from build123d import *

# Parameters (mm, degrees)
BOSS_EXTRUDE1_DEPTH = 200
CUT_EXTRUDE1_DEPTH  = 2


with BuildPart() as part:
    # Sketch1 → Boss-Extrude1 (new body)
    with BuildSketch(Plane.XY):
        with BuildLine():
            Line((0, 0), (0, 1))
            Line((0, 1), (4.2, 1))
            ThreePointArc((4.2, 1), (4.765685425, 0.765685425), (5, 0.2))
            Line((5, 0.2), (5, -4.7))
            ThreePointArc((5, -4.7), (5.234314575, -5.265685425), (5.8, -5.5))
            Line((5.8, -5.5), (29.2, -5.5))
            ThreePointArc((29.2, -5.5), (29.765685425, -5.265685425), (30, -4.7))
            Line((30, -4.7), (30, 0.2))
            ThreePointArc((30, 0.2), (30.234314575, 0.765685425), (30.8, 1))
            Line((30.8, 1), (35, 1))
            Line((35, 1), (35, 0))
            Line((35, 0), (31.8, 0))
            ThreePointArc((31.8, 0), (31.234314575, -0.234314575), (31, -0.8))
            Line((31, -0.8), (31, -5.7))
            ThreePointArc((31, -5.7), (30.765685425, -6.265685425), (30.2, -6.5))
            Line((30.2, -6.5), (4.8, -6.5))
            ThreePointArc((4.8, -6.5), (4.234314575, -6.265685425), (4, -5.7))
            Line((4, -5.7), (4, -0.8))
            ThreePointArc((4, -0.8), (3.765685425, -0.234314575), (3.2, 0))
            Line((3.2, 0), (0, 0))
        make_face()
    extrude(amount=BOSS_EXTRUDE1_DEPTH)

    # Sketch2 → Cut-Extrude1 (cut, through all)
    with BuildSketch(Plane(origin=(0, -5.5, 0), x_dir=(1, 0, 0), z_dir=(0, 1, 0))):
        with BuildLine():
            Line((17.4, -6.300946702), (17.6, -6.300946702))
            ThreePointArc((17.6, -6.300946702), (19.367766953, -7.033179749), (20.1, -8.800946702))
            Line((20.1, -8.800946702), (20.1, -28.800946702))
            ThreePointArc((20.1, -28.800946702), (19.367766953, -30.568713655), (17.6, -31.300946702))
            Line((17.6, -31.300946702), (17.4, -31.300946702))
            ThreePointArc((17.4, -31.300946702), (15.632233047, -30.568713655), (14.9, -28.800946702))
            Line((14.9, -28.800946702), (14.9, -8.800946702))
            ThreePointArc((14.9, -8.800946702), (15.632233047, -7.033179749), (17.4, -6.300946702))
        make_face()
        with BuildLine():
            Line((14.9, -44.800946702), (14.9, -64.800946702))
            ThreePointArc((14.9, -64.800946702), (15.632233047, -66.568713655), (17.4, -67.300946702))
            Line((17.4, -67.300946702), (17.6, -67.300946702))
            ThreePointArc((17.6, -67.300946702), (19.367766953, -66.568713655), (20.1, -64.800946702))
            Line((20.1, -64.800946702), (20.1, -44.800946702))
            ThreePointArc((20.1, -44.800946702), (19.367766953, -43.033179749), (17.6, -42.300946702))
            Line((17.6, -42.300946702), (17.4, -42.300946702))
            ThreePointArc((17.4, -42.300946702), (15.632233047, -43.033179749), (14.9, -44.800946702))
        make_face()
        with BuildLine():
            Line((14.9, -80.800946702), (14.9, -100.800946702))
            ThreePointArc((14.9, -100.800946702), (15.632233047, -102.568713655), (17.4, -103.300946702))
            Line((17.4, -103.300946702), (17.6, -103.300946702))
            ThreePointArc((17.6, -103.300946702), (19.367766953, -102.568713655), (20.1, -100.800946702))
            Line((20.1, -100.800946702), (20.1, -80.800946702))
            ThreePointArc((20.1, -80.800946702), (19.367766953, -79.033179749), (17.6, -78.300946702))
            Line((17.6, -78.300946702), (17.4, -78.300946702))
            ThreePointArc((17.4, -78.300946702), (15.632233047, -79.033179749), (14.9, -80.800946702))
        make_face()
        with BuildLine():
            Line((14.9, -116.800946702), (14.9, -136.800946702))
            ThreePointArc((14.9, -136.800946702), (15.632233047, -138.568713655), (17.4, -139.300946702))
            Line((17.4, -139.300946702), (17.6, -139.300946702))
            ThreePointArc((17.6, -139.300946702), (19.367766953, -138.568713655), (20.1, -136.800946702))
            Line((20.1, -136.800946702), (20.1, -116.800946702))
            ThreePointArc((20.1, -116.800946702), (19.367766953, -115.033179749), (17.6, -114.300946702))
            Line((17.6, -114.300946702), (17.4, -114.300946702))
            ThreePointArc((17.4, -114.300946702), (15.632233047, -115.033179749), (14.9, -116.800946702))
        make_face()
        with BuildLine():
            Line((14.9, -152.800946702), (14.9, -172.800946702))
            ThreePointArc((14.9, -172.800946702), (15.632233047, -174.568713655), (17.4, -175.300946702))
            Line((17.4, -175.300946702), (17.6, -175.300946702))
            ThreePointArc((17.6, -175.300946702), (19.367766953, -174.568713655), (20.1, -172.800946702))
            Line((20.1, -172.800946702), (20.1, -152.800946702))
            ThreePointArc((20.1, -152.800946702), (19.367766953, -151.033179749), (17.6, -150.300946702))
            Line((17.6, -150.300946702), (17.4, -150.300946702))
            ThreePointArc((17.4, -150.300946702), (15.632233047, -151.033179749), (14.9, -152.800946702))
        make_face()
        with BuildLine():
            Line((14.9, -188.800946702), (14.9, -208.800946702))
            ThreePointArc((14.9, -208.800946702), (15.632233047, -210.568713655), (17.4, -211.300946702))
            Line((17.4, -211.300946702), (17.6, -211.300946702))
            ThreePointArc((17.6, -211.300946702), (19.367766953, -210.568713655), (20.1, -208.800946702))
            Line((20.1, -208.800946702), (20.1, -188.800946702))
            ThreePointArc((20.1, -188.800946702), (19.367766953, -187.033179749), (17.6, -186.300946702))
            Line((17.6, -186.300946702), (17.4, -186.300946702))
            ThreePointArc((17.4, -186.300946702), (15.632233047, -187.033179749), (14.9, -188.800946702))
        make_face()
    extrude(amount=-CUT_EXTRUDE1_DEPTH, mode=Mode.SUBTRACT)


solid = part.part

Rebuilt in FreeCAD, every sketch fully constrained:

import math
import FreeCAD as App
import Part
import Sketcher

V = App.Vector
Q = App.Units.Quantity

doc = App.newDocument("Part")
body = doc.addObject("PartDesign::Body", "Body")

# Sketch on XY plane
sketch1 = body.newObject("Sketcher::SketchObject", "Sketch")
sketch1.AttachmentSupport = (doc.getObject("XY_Plane"), [""])
sketch1.MapMode = "FlatFace"
sketch1.addGeometry([
    Part.LineSegment(V(0, 1, 0), V(0, 0, 0)),  # 0
    Part.LineSegment(V(0, 0, 0), V(3.2, 0, 0)),  # 1
    Part.ArcOfCircle(Part.Circle(V(3.2, -0.8, 0), V(0, 0, 1), 0.8), math.radians(0), math.radians(90)),  # 2
    Part.LineSegment(V(4, -0.8, 0), V(4, -5.7, 0)),  # 3
    Part.ArcOfCircle(Part.Circle(V(4.8, -5.7, 0), V(0, 0, 1), 0.8), math.radians(180), math.radians(270)),  # 4
    Part.LineSegment(V(4.8, -6.5, 0), V(30.2, -6.5, 0)),  # 5
    Part.ArcOfCircle(Part.Circle(V(30.2, -5.7, 0), V(0, 0, 1), 0.8), math.radians(-90), math.radians(0)),  # 6
    Part.LineSegment(V(31, -5.7, 0), V(31, -0.8, 0)),  # 7
    Part.ArcOfCircle(Part.Circle(V(31.8, -0.8, 0), V(0, 0, 1), 0.8), math.radians(90), math.radians(180)),  # 8
    Part.LineSegment(V(31.8, 0, 0), V(35, 0, 0)),  # 9
    Part.LineSegment(V(35, 0, 0), V(35, 1, 0)),  # 10
    Part.LineSegment(V(35, 1, 0), V(30.8, 1, 0)),  # 11
    Part.ArcOfCircle(Part.Circle(V(30.8, 0.2, 0), V(0, 0, 1), 0.8), math.radians(90), math.radians(180)),  # 12
    Part.LineSegment(V(30, 0.2, 0), V(30, -4.7, 0)),  # 13
    Part.ArcOfCircle(Part.Circle(V(29.2, -4.7, 0), V(0, 0, 1), 0.8), math.radians(-90), math.radians(0)),  # 14
    Part.LineSegment(V(29.2, -5.5, 0), V(5.8, -5.5, 0)),  # 15
    Part.ArcOfCircle(Part.Circle(V(5.8, -4.7, 0), V(0, 0, 1), 0.8), math.radians(180), math.radians(270)),  # 16
    Part.LineSegment(V(5, -4.7, 0), V(5, 0.2, 0)),  # 17
    Part.ArcOfCircle(Part.Circle(V(4.2, 0.2, 0), V(0, 0, 1), 0.8), math.radians(0), math.radians(90)),  # 18
    Part.LineSegment(V(4.2, 1, 0), V(0, 1, 0)),  # 19
], False)
sketch1.addConstraint([
    Sketcher.Constraint("Coincident", 0, 2, 1, 1),
    Sketcher.Constraint("Tangent", 1, 2, 2, 2),
    Sketcher.Constraint("Tangent", 2, 1, 3, 1),
    Sketcher.Constraint("Tangent", 3, 2, 4, 1),
    Sketcher.Constraint("Tangent", 4, 2, 5, 1),
    Sketcher.Constraint("Tangent", 5, 2, 6, 1),
    Sketcher.Constraint("Tangent", 6, 2, 7, 1),
    Sketcher.Constraint("Tangent", 7, 2, 8, 2),
    Sketcher.Constraint("Tangent", 8, 1, 9, 1),
    Sketcher.Constraint("Coincident", 9, 2, 10, 1),
    Sketcher.Constraint("Coincident", 10, 2, 11, 1),
    Sketcher.Constraint("Tangent", 11, 2, 12, 1),
    Sketcher.Constraint("Tangent", 12, 2, 13, 1),
    Sketcher.Constraint("Tangent", 13, 2, 14, 2),
    Sketcher.Constraint("Tangent", 14, 1, 15, 1),
    Sketcher.Constraint("Tangent", 15, 2, 16, 2),
    Sketcher.Constraint("Tangent", 16, 1, 17, 1),
    Sketcher.Constraint("Tangent", 17, 2, 18, 1),
    Sketcher.Constraint("Tangent", 18, 2, 19, 1),
    Sketcher.Constraint("Coincident", 19, 2, 0, 1),
    Sketcher.Constraint("Vertical", 0),
    Sketcher.Constraint("Horizontal", 1),
    Sketcher.Constraint("Vertical", 3),
    Sketcher.Constraint("Horizontal", 5),
    Sketcher.Constraint("Vertical", 7),
    Sketcher.Constraint("Horizontal", 9),
    Sketcher.Constraint("Vertical", 10),
    Sketcher.Constraint("Horizontal", 11),
    Sketcher.Constraint("Vertical", 13),
    Sketcher.Constraint("Horizontal", 15),
    Sketcher.Constraint("Vertical", 17),
    Sketcher.Constraint("Horizontal", 19),
    Sketcher.Constraint("Coincident", 0, 2, -1, 1),
    Sketcher.Constraint("Equal", 2, 4),
    Sketcher.Constraint("Equal", 4, 6),
    Sketcher.Constraint("Equal", 6, 8),
    Sketcher.Constraint("Equal", 8, 12),
    Sketcher.Constraint("Equal", 12, 14),
    Sketcher.Constraint("Equal", 14, 16),
    Sketcher.Constraint("Equal", 16, 18),
    Sketcher.Constraint("PointOnObject", 8, 1, -1),
    Sketcher.Constraint("Horizontal", 12, 3, 18, 3),
    Sketcher.Constraint("Equal", 1, 9),
    Sketcher.Constraint("Equal", 11, 19),
    Sketcher.Constraint("Equal", 7, 13),
    Sketcher.Constraint("Radius", 2, Q("0.8 mm")),
    Sketcher.Constraint("DistanceY", 0, 2, 0, 1, Q("1 mm")),
    Sketcher.Constraint("DistanceX", 1, 1, 1, 2, Q("3.2 mm")),
    Sketcher.Constraint("DistanceX", 5, 1, 5, 2, Q("25.4 mm")),
    Sketcher.Constraint("DistanceX", 11, 2, 11, 1, Q("4.2 mm")),
    Sketcher.Constraint("DistanceY", 3, 2, 3, 1, Q("4.9 mm")),
])
pad1 = body.newObject("PartDesign::Pad", "Pad")
pad1.Profile = sketch1
pad1.Length = 200

# Sketch on XZ plane
sketch2 = body.newObject("Sketcher::SketchObject", "Sketch001")
sketch2.AttachmentSupport = (doc.getObject("XZ_Plane"), [""])
sketch2.MapMode = "FlatFace"
sketch2.AttachmentOffset = App.Placement(V(0, 0, 5.5), App.Rotation())
sketch2.addGeometry([
    Part.LineSegment(V(17.6, 6.3, 0), V(17.4, 6.3, 0)),  # 0
    Part.ArcOfCircle(Part.Circle(V(17.4, 8.8, 0), V(0, 0, 1), 2.5), math.radians(180), math.radians(270)),  # 1
    Part.LineSegment(V(14.9, 8.8, 0), V(14.9, 28.8, 0)),  # 2
    Part.ArcOfCircle(Part.Circle(V(17.4, 28.8, 0), V(0, 0, 1), 2.5), math.radians(90), math.radians(180)),  # 3
    Part.LineSegment(V(17.4, 31.3, 0), V(17.6, 31.3, 0)),  # 4
    Part.ArcOfCircle(Part.Circle(V(17.6, 28.8, 0), V(0, 0, 1), 2.5), math.radians(0), math.radians(90)),  # 5
    Part.LineSegment(V(20.1, 28.8, 0), V(20.1, 8.8, 0)),  # 6
    Part.ArcOfCircle(Part.Circle(V(17.6, 8.8, 0), V(0, 0, 1), 2.5), math.radians(-90), math.radians(0)),  # 7
    Part.LineSegment(V(14.9, 44.8, 0), V(14.9, 64.8, 0)),  # 8
    Part.ArcOfCircle(Part.Circle(V(17.4, 64.8, 0), V(0, 0, 1), 2.5), math.radians(90), math.radians(180)),  # 9
    Part.LineSegment(V(17.4, 67.3, 0), V(17.6, 67.3, 0)),  # 10
    Part.ArcOfCircle(Part.Circle(V(17.6, 64.8, 0), V(0, 0, 1), 2.5), math.radians(0), math.radians(90)),  # 11
    Part.LineSegment(V(20.1, 64.8, 0), V(20.1, 44.8, 0)),  # 12
    Part.ArcOfCircle(Part.Circle(V(17.6, 44.8, 0), V(0, 0, 1), 2.5), math.radians(-90), math.radians(0)),  # 13
    Part.LineSegment(V(17.6, 42.3, 0), V(17.4, 42.3, 0)),  # 14
    Part.ArcOfCircle(Part.Circle(V(17.4, 44.8, 0), V(0, 0, 1), 2.5), math.radians(180), math.radians(270)),  # 15
    Part.LineSegment(V(14.9, 80.8, 0), V(14.9, 100.8, 0)),  # 16
    Part.ArcOfCircle(Part.Circle(V(17.4, 100.8, 0), V(0, 0, 1), 2.5), math.radians(90), math.radians(180)),  # 17
    Part.LineSegment(V(17.4, 103.3, 0), V(17.6, 103.3, 0)),  # 18
    Part.ArcOfCircle(Part.Circle(V(17.6, 100.8, 0), V(0, 0, 1), 2.5), math.radians(0), math.radians(90)),  # 19
    Part.LineSegment(V(20.1, 100.8, 0), V(20.1, 80.8, 0)),  # 20
    Part.ArcOfCircle(Part.Circle(V(17.6, 80.8, 0), V(0, 0, 1), 2.5), math.radians(-90), math.radians(0)),  # 21
    Part.LineSegment(V(17.6, 78.3, 0), V(17.4, 78.3, 0)),  # 22
    Part.ArcOfCircle(Part.Circle(V(17.4, 80.8, 0), V(0, 0, 1), 2.5), math.radians(180), math.radians(270)),  # 23
    Part.LineSegment(V(14.9, 116.8, 0), V(14.9, 136.8, 0)),  # 24
    Part.ArcOfCircle(Part.Circle(V(17.4, 136.8, 0), V(0, 0, 1), 2.5), math.radians(90), math.radians(180)),  # 25
    Part.LineSegment(V(17.4, 139.3, 0), V(17.6, 139.3, 0)),  # 26
    Part.ArcOfCircle(Part.Circle(V(17.6, 136.8, 0), V(0, 0, 1), 2.5), math.radians(0), math.radians(90)),  # 27
    Part.LineSegment(V(20.1, 136.8, 0), V(20.1, 116.8, 0)),  # 28
    Part.ArcOfCircle(Part.Circle(V(17.6, 116.8, 0), V(0, 0, 1), 2.5), math.radians(-90), math.radians(0)),  # 29
    Part.LineSegment(V(17.6, 114.3, 0), V(17.4, 114.3, 0)),  # 30
    Part.ArcOfCircle(Part.Circle(V(17.4, 116.8, 0), V(0, 0, 1), 2.5), math.radians(180), math.radians(270)),  # 31
    Part.LineSegment(V(14.9, 152.8, 0), V(14.9, 172.8, 0)),  # 32
    Part.ArcOfCircle(Part.Circle(V(17.4, 172.8, 0), V(0, 0, 1), 2.5), math.radians(90), math.radians(180)),  # 33
    Part.LineSegment(V(17.4, 175.3, 0), V(17.6, 175.3, 0)),  # 34
    Part.ArcOfCircle(Part.Circle(V(17.6, 172.8, 0), V(0, 0, 1), 2.5), math.radians(0), math.radians(90)),  # 35
    Part.LineSegment(V(20.1, 172.8, 0), V(20.1, 152.8, 0)),  # 36
    Part.ArcOfCircle(Part.Circle(V(17.6, 152.8, 0), V(0, 0, 1), 2.5), math.radians(-90), math.radians(0)),  # 37
    Part.LineSegment(V(17.6, 150.3, 0), V(17.4, 150.3, 0)),  # 38
    Part.ArcOfCircle(Part.Circle(V(17.4, 152.8, 0), V(0, 0, 1), 2.5), math.radians(180), math.radians(270)),  # 39
    Part.LineSegment(V(14.9, 188.8, 0), V(14.9, 208.8, 0)),  # 40
    Part.ArcOfCircle(Part.Circle(V(17.4, 208.8, 0), V(0, 0, 1), 2.5), math.radians(90), math.radians(180)),  # 41
    Part.LineSegment(V(17.4, 211.3, 0), V(17.6, 211.3, 0)),  # 42
    Part.ArcOfCircle(Part.Circle(V(17.6, 208.8, 0), V(0, 0, 1), 2.5), math.radians(0), math.radians(90)),  # 43
    Part.LineSegment(V(20.1, 208.8, 0), V(20.1, 188.8, 0)),  # 44
    Part.ArcOfCircle(Part.Circle(V(17.6, 188.8, 0), V(0, 0, 1), 2.5), math.radians(-90), math.radians(0)),  # 45
    Part.LineSegment(V(17.6, 186.3, 0), V(17.4, 186.3, 0)),  # 46
    Part.ArcOfCircle(Part.Circle(V(17.4, 188.8, 0), V(0, 0, 1), 2.5), math.radians(180), math.radians(270)),  # 47
], False)
sketch2.addConstraint([
    Sketcher.Constraint("Tangent", 0, 2, 1, 2),
    Sketcher.Constraint("Tangent", 1, 1, 2, 1),
    Sketcher.Constraint("Tangent", 2, 2, 3, 2),
    Sketcher.Constraint("Tangent", 3, 1, 4, 1),
    Sketcher.Constraint("Tangent", 4, 2, 5, 2),
    Sketcher.Constraint("Tangent", 5, 1, 6, 1),
    Sketcher.Constraint("Tangent", 6, 2, 7, 2),
    Sketcher.Constraint("Tangent", 7, 1, 0, 1),
    Sketcher.Constraint("Tangent", 8, 2, 9, 2),
    Sketcher.Constraint("Tangent", 9, 1, 10, 1),
    Sketcher.Constraint("Tangent", 10, 2, 11, 2),
    Sketcher.Constraint("Tangent", 11, 1, 12, 1),
    Sketcher.Constraint("Tangent", 12, 2, 13, 2),
    Sketcher.Constraint("Tangent", 13, 1, 14, 1),
    Sketcher.Constraint("Tangent", 14, 2, 15, 2),
    Sketcher.Constraint("Tangent", 15, 1, 8, 1),
    Sketcher.Constraint("Tangent", 16, 2, 17, 2),
    Sketcher.Constraint("Tangent", 17, 1, 18, 1),
    Sketcher.Constraint("Tangent", 18, 2, 19, 2),
    Sketcher.Constraint("Tangent", 19, 1, 20, 1),
    Sketcher.Constraint("Tangent", 20, 2, 21, 2),
    Sketcher.Constraint("Tangent", 21, 1, 22, 1),
    Sketcher.Constraint("Tangent", 22, 2, 23, 2),
    Sketcher.Constraint("Tangent", 23, 1, 16, 1),
    Sketcher.Constraint("Tangent", 24, 2, 25, 2),
    Sketcher.Constraint("Tangent", 25, 1, 26, 1),
    Sketcher.Constraint("Tangent", 26, 2, 27, 2),
    Sketcher.Constraint("Tangent", 27, 1, 28, 1),
    Sketcher.Constraint("Tangent", 28, 2, 29, 2),
    Sketcher.Constraint("Tangent", 29, 1, 30, 1),
    Sketcher.Constraint("Tangent", 30, 2, 31, 2),
    Sketcher.Constraint("Tangent", 31, 1, 24, 1),
    Sketcher.Constraint("Tangent", 32, 2, 33, 2),
    Sketcher.Constraint("Tangent", 33, 1, 34, 1),
    Sketcher.Constraint("Tangent", 34, 2, 35, 2),
    Sketcher.Constraint("Tangent", 35, 1, 36, 1),
    Sketcher.Constraint("Tangent", 36, 2, 37, 2),
    Sketcher.Constraint("Tangent", 37, 1, 38, 1),
    Sketcher.Constraint("Tangent", 38, 2, 39, 2),
    Sketcher.Constraint("Tangent", 39, 1, 32, 1),
    Sketcher.Constraint("Tangent", 40, 2, 41, 2),
    Sketcher.Constraint("Tangent", 41, 1, 42, 1),
    Sketcher.Constraint("Tangent", 42, 2, 43, 2),
    Sketcher.Constraint("Tangent", 43, 1, 44, 1),
    Sketcher.Constraint("Tangent", 44, 2, 45, 2),
    Sketcher.Constraint("Tangent", 45, 1, 46, 1),
    Sketcher.Constraint("Tangent", 46, 2, 47, 2),
    Sketcher.Constraint("Tangent", 47, 1, 40, 1),
    Sketcher.Constraint("Horizontal", 0),
    Sketcher.Constraint("Vertical", 2),
    Sketcher.Constraint("Horizontal", 4),
    Sketcher.Constraint("Vertical", 6),
    Sketcher.Constraint("Vertical", 8),
    Sketcher.Constraint("Horizontal", 10),
    Sketcher.Constraint("Vertical", 12),
    Sketcher.Constraint("Horizontal", 14),
    Sketcher.Constraint("Vertical", 16),
    Sketcher.Constraint("Horizontal", 18),
    Sketcher.Constraint("Vertical", 20),
    Sketcher.Constraint("Horizontal", 22),
    Sketcher.Constraint("Vertical", 24),
    Sketcher.Constraint("Horizontal", 26),
    Sketcher.Constraint("Vertical", 28),
    Sketcher.Constraint("Horizontal", 30),
    Sketcher.Constraint("Vertical", 32),
    Sketcher.Constraint("Horizontal", 34),
    Sketcher.Constraint("Vertical", 36),
    Sketcher.Constraint("Horizontal", 38),
    Sketcher.Constraint("Vertical", 40),
    Sketcher.Constraint("Horizontal", 42),
    Sketcher.Constraint("Vertical", 44),
    Sketcher.Constraint("Horizontal", 46),
    Sketcher.Constraint("Equal", 1, 3),
    Sketcher.Constraint("Equal", 3, 5),
    Sketcher.Constraint("Equal", 5, 7),
    Sketcher.Constraint("Equal", 7, 9),
    Sketcher.Constraint("Equal", 9, 11),
    Sketcher.Constraint("Equal", 11, 13),
    Sketcher.Constraint("Equal", 13, 15),
    Sketcher.Constraint("Equal", 15, 17),
    Sketcher.Constraint("Equal", 17, 19),
    Sketcher.Constraint("Equal", 19, 21),
    Sketcher.Constraint("Equal", 21, 23),
    Sketcher.Constraint("Equal", 23, 25),
    Sketcher.Constraint("Equal", 25, 27),
    Sketcher.Constraint("Equal", 27, 29),
    Sketcher.Constraint("Equal", 29, 31),
    Sketcher.Constraint("Equal", 31, 33),
    Sketcher.Constraint("Equal", 33, 35),
    Sketcher.Constraint("Equal", 35, 37),
    Sketcher.Constraint("Equal", 37, 39),
    Sketcher.Constraint("Equal", 39, 41),
    Sketcher.Constraint("Equal", 41, 43),
    Sketcher.Constraint("Equal", 43, 45),
    Sketcher.Constraint("Equal", 45, 47),
    Sketcher.Constraint("Vertical", 3, 3, 9, 3),
    Sketcher.Constraint("Vertical", 7, 3, 11, 3),
    Sketcher.Constraint("Vertical", 15, 3, 17, 3),
    Sketcher.Constraint("Vertical", 13, 3, 19, 3),
    Sketcher.Constraint("Vertical", 23, 3, 25, 3),
    Sketcher.Constraint("Vertical", 21, 3, 27, 3),
    Sketcher.Constraint("Vertical", 31, 3, 33, 3),
    Sketcher.Constraint("Vertical", 29, 3, 35, 3),
    Sketcher.Constraint("Vertical", 39, 3, 41, 3),
    Sketcher.Constraint("Vertical", 37, 3, 43, 3),
    Sketcher.Constraint("Equal", 6, 8),
    Sketcher.Constraint("Equal", 12, 16),
    Sketcher.Constraint("Equal", 20, 24),
    Sketcher.Constraint("Equal", 28, 32),
    Sketcher.Constraint("Equal", 36, 40),
    Sketcher.Constraint("Radius", 1, Q("2.5 mm")),
    Sketcher.Constraint("DistanceY", 2, 1, 2, 2, Q("20 mm")),
    Sketcher.Constraint("DistanceX", 0, 2, 0, 1, Q("0.2 mm")),
    Sketcher.Constraint("DistanceX", -1, 1, 1, 3, Q("17.4 mm")),
    Sketcher.Constraint("DistanceY", -1, 1, 1, 3, Q("8.800947 mm")),
    Sketcher.Constraint("DistanceY", -1, 1, 9, 3, Q("64.800947 mm")),
    Sketcher.Constraint("DistanceY", -1, 1, 17, 3, Q("100.800947 mm")),
    Sketcher.Constraint("DistanceY", -1, 1, 25, 3, Q("136.800947 mm")),
    Sketcher.Constraint("DistanceY", -1, 1, 33, 3, Q("172.800947 mm")),
    Sketcher.Constraint("DistanceY", -1, 1, 41, 3, Q("208.800947 mm")),
])
pocket1 = body.newObject("PartDesign::Pocket", "Pocket")
pocket1.Profile = sketch2
pocket1.Type = "ThroughAll"
pocket1.Reversed = True

doc.recompute()
